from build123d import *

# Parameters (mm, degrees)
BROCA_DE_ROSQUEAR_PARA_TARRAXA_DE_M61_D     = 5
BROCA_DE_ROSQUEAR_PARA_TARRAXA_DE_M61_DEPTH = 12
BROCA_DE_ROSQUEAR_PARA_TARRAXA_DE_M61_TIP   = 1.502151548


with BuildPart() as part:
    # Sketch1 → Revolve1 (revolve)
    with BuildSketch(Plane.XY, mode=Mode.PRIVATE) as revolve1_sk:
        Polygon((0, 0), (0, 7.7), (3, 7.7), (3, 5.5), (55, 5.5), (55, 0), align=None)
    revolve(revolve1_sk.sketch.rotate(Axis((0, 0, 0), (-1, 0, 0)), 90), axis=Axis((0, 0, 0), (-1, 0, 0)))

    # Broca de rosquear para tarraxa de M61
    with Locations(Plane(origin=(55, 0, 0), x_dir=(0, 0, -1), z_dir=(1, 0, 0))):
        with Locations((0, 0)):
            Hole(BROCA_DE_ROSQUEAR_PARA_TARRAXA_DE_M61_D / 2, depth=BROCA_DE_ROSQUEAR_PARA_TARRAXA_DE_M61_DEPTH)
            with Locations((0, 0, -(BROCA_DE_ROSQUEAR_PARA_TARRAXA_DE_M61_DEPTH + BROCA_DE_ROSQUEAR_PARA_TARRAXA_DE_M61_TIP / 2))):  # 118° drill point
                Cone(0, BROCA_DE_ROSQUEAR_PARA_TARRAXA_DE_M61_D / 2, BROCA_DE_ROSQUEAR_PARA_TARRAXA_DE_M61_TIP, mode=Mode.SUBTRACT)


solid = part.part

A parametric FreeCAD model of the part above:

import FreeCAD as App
import Part
import Sketcher
Q = App.Units.Quantity


def add_polygon(sketch, points):
    """Adds a closed chain of lines whose ends are joined by coincident constraints."""
    first, n = sketch.GeometryCount, len(points)
    for a, b in zip(points, points[1:] + points[:1]):
        sketch.addGeometry(Part.LineSegment(App.Vector(*a, 0), App.Vector(*b, 0)), False)
    for i in range(n):
        sketch.addConstraint(Sketcher.Constraint("Coincident", first + i, 2, first + (i + 1) % n, 1))

doc = App.newDocument("Part")
body = doc.addObject("PartDesign::Body", "Body")

sketch1 = body.newObject("Sketcher::SketchObject", "Sketch")
sketch1.AttachmentSupport = (doc.getObject("XY_Plane"), [""])
sketch1.MapMode = "FlatFace"
add_polygon(sketch1, [(0, 7.7), (0, 0), (55, 0), (55, 5.5), (3, 5.5), (3, 7.7)])
sketch1.addConstraint([
    Sketcher.Constraint("Vertical", 0),
    Sketcher.Constraint("Horizontal", 1),
    Sketcher.Constraint("Vertical", 2),
    Sketcher.Constraint("Horizontal", 3),
    Sketcher.Constraint("Vertical", 4),
    Sketcher.Constraint("Horizontal", 5),
    Sketcher.Constraint("Coincident", 0, 2, -1, 1),
    Sketcher.Constraint("DistanceX", 1, 1, 1, 2, Q("55 mm")),
    Sketcher.Constraint("DistanceX", 3, 2, 3, 1, Q("52 mm")),
    Sketcher.Constraint("DistanceY", 0, 2, 0, 1, Q("7.7 mm")),
    Sketcher.Constraint("DistanceY", 2, 1, 2, 2, Q("5.5 mm")),
])
revolution = body.newObject("PartDesign::Revolution", "Revolution")
revolution.Profile = sketch1
revolution.ReferenceAxis = (sketch1, ["H_Axis"])
revolution.Angle = 360

sketch2 = body.newObject("Sketcher::SketchObject", "Sketch001")
sketch2.AttachmentSupport = (doc.getObject("YZ_Plane"), [""])
sketch2.MapMode = "FlatFace"
sketch2.AttachmentOffset = App.Placement(App.Vector(0, 0, 55), App.Rotation())
sketch2.addGeometry(Part.Circle(App.Vector(0, 0, 0), App.Vector(0, 0, 1), 2.5), False)
sketch2.addConstraint([
    Sketcher.Constraint("Coincident", 0, 3, -1, 1),
    Sketcher.Constraint("Diameter", 0, Q("5 mm")),
])
doc.recompute()
hole = body.newObject("PartDesign::Hole", "Hole")
hole.Profile = sketch2
hole.ThreadType = "None"
hole.Diameter = 5
hole.DepthType = "Dimension"
hole.Depth = 12
hole.DrillPoint = "Angled"
hole.DrillPointAngle = 118

doc.recompute()
